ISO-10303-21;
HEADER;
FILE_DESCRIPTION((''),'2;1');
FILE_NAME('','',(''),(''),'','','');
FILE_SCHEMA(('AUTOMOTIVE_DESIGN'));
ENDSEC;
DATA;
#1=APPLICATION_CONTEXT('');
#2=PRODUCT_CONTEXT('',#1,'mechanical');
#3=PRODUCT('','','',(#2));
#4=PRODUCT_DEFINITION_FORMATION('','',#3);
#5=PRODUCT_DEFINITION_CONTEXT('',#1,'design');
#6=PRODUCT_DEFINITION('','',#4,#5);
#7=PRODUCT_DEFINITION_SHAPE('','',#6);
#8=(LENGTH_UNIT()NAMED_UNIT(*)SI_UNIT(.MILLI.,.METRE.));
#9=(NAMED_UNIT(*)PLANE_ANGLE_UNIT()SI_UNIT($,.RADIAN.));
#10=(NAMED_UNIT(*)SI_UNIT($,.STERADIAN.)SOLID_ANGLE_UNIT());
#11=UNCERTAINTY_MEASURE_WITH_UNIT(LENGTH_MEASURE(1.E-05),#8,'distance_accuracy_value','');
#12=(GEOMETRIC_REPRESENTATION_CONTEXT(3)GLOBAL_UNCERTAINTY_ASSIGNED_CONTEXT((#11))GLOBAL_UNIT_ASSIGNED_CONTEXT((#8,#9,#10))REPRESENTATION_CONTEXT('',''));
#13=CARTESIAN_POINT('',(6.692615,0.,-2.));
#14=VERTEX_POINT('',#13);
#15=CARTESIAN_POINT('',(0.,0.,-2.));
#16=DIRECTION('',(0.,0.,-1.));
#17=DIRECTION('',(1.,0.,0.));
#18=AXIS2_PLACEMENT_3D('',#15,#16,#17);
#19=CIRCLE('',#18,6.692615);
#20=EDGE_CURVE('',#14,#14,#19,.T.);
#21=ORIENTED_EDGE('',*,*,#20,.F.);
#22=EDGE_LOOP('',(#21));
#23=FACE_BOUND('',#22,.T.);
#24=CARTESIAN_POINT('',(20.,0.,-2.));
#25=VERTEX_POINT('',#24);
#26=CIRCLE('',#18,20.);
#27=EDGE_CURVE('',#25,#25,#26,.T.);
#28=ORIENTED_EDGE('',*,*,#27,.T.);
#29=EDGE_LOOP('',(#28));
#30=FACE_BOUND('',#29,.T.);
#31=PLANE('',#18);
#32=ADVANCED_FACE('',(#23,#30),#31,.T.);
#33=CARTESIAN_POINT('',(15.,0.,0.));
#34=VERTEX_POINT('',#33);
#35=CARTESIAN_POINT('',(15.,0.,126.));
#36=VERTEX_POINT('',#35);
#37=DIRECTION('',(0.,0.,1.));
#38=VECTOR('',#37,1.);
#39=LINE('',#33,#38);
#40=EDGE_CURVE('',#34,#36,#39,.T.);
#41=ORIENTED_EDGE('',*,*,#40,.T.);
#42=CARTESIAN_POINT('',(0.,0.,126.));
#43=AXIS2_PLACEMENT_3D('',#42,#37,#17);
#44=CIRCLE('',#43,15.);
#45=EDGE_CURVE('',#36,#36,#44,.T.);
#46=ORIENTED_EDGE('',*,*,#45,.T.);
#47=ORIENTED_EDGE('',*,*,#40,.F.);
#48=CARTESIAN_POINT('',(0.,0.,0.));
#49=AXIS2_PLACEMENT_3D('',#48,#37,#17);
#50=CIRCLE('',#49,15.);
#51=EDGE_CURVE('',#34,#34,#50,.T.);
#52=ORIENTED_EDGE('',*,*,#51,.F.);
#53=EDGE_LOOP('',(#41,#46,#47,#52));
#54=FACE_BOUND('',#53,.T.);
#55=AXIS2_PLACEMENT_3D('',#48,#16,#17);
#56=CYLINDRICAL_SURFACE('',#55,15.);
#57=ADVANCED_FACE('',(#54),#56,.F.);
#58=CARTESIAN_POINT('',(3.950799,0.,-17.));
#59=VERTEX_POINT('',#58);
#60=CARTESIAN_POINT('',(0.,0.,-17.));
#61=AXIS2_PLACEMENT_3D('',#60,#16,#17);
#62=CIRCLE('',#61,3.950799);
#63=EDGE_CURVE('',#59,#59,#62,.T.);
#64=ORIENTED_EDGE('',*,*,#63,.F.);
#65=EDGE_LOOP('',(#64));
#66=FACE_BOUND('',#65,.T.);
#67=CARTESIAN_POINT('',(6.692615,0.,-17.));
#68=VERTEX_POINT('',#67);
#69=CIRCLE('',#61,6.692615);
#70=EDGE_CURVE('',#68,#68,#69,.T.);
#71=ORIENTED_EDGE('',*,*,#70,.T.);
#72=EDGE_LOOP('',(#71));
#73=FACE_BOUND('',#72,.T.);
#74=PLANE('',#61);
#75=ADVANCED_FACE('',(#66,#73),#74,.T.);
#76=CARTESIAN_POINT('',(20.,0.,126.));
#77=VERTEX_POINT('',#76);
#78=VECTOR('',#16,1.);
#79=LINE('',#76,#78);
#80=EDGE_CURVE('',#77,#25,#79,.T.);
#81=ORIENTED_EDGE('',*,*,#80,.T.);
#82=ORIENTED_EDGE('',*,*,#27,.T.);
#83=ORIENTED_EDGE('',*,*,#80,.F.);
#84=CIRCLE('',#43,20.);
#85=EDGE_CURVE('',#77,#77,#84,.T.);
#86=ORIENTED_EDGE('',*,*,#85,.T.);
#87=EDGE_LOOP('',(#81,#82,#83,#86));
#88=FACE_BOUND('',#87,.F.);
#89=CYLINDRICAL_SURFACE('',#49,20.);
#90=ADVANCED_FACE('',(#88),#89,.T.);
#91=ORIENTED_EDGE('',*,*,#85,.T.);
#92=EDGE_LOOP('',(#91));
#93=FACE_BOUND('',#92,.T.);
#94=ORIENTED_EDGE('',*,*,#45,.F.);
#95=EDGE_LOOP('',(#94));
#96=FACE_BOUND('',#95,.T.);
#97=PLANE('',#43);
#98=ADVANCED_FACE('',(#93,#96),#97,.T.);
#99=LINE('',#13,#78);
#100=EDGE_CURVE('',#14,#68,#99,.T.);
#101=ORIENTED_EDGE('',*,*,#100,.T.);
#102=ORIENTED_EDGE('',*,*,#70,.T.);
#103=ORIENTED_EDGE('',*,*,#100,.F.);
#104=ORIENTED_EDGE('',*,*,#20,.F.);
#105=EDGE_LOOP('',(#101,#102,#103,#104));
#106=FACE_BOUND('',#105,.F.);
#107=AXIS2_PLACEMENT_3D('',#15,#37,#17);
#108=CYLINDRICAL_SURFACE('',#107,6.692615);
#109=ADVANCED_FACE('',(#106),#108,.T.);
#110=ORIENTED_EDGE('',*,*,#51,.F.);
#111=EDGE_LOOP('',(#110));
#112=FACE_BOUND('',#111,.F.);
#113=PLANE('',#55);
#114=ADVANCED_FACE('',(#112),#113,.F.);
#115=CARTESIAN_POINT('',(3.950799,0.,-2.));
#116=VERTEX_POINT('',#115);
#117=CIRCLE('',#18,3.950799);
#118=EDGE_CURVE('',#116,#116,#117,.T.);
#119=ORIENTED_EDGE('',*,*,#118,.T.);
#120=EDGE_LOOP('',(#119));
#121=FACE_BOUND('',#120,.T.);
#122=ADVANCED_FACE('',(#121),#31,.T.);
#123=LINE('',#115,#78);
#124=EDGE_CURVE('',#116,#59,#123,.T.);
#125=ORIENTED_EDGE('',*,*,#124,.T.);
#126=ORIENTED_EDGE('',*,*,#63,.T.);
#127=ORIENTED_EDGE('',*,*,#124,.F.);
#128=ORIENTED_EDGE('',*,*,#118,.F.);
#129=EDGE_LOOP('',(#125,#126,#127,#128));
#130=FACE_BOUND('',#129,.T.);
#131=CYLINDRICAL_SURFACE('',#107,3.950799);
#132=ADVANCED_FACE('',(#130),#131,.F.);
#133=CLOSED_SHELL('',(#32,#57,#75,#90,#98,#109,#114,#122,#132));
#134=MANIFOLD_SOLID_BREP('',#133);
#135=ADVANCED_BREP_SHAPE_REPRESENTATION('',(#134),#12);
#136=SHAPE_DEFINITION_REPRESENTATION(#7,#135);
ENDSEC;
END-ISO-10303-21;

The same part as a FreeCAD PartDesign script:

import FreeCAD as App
import Part
import Sketcher

V = App.Vector
Q = App.Units.Quantity

doc = App.newDocument("Part")
body = doc.addObject("PartDesign::Body", "Body")

sketch1 = doc.addObject("Sketcher::SketchObject", "Sketch")
body.addObject(sketch1)
sketch1.AttachmentSupport = (doc.XY_Plane, [""])
sketch1.MapMode = "FlatFace"
sketch1.addGeometry([
    Part.Circle(V(0, 0, 0), V(0, 0, 1), 20),
    Part.Circle(V(0, 0, 0), V(0, 0, 1), 15),
], False)
sketch1.addConstraint([
    Sketcher.Constraint("Coincident", 0, 3, -1, 1),
    Sketcher.Constraint("Coincident", 1, 3, -1, 1),
    Sketcher.Constraint("Diameter", 0, Q("40 mm")),
    Sketcher.Constraint("Diameter", 1, Q("30 mm")),
])
pad1 = doc.addObject("PartDesign::Pad", "Pad")
body.addObject(pad1)
pad1.Profile = sketch1
pad1.Length = 126

sketch2 = doc.addObject("Sketcher::SketchObject", "Sketch001")
body.addObject(sketch2)
sketch2.AttachmentSupport = (doc.XY_Plane, [""])
sketch2.MapMode = "FlatFace"
sketch2.addGeometry(Part.Circle(V(0, 0, 0), V(0, 0, 1), 20), False)
sketch2.addConstraint([
    Sketcher.Constraint("Coincident", 0, 3, -1, 1),
    Sketcher.Constraint("Diameter", 0, Q("40 mm")),
])
pad2 = doc.addObject("PartDesign::Pad", "Pad001")
body.addObject(pad2)
pad2.Profile = sketch2
pad2.Length = 2
pad2.Reversed = True

sketch3 = doc.addObject("Sketcher::SketchObject", "Sketch002")
body.addObject(sketch3)
sketch3.AttachmentSupport = (doc.XY_Plane, [""])
sketch3.MapMode = "FlatFace"
sketch3.AttachmentOffset = App.Placement(V(0, 0, -2), App.Rotation())
sketch3.addGeometry([
    Part.Circle(V(0, 0, 0), V(0, 0, 1), 6.7),
    Part.Circle(V(0, 0, 0), V(0, 0, 1), 4),
], False)
sketch3.addConstraint([
    Sketcher.Constraint("Coincident", 0, 3, -1, 1),
    Sketcher.Constraint("Coincident", 1, 3, -1, 1),
    Sketcher.Constraint("Diameter", 0, Q("13.38523 mm")),
    Sketcher.Constraint("Diameter", 1, Q("7.901598 mm")),
])
pad3 = doc.addObject("PartDesign::Pad", "Pad002")
body.addObject(pad3)
pad3.Profile = sketch3
pad3.Length = 15
pad3.Reversed = True

doc.recompute()
